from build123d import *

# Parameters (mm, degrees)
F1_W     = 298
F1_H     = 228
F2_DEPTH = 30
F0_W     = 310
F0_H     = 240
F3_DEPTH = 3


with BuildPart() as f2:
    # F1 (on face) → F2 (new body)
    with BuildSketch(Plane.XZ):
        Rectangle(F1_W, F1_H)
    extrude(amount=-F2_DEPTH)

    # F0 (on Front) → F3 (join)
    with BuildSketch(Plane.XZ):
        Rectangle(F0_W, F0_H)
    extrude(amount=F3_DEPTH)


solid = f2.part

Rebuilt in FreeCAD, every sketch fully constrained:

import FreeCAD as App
import Part
import Sketcher

V = App.Vector
Q = App.Units.Quantity

doc = App.newDocument("Part")
body = doc.addObject("PartDesign::Body", "Body")

# Sketch on XZ plane
sketch1 = body.newObject("Sketcher::SketchObject", "Sketch")
sketch1.AttachmentSupport = (doc.getObject("XZ_Plane"), [""])
sketch1.MapMode = "FlatFace"
sketch1.addGeometry(Part.LineSegment(V(-149, 114, 0), V(-149, -114, 0)), False)
sketch1.addGeometry(Part.LineSegment(V(-149, -114, 0), V(149, -114, 0)), False)
sketch1.addGeometry(Part.LineSegment(V(149, -114, 0), V(149, 114, 0)), False)
sketch1.addGeometry(Part.LineSegment(V(149, 114, 0), V(-149, 114, 0)), False)
sketch1.addConstraint(Sketcher.Constraint("Coincident", 0, 2, 1, 1))
sketch1.addConstraint(Sketcher.Constraint("Coincident", 1, 2, 2, 1))
sketch1.addConstraint(Sketcher.Constraint("Coincident", 2, 2, 3, 1))
sketch1.addConstraint(Sketcher.Constraint("Coincident", 3, 2, 0, 1))
sketch1.addConstraint(Sketcher.Constraint("Vertical", 0))
sketch1.addConstraint(Sketcher.Constraint("Horizontal", 1))
sketch1.addConstraint(Sketcher.Constraint("Vertical", 2))
sketch1.addConstraint(Sketcher.Constraint("Horizontal", 3))
sketch1.addConstraint(Sketcher.Constraint("Symmetric", 0, 2, 2, 2, -1, 1))
sketch1.addConstraint(Sketcher.Constraint("DistanceX", 1, 1, 1, 2, Q("298 mm")))
sketch1.addConstraint(Sketcher.Constraint("DistanceY", 0, 2, 0, 1, Q("228 mm")))
pad1 = body.newObject("PartDesign::Pad", "Pad")
pad1.Profile = sketch1
pad1.Length = 30
pad1.Reversed = True

# Sketch on XZ plane
sketch2 = body.newObject("Sketcher::SketchObject", "Sketch001")
sketch2.AttachmentSupport = (doc.getObject("XZ_Plane"), [""])
sketch2.MapMode = "FlatFace"
sketch2.addGeometry(Part.LineSegment(V(-155, 120, 0), V(-155, -120, 0)), False)
sketch2.addGeometry(Part.LineSegment(V(-155, -120, 0), V(155, -120, 0)), False)
sketch2.addGeometry(Part.LineSegment(V(155, -120, 0), V(155, 120, 0)), False)
sketch2.addGeometry(Part.LineSegment(V(155, 120, 0), V(-155, 120, 0)), False)
sketch2.addConstraint(Sketcher.Constraint("Coincident", 0, 2, 1, 1))
sketch2.addConstraint(Sketcher.Constraint("Coincident", 1, 2, 2, 1))
sketch2.addConstraint(Sketcher.Constraint("Coincident", 2, 2, 3, 1))
sketch2.addConstraint(Sketcher.Constraint("Coincident", 3, 2, 0, 1))
sketch2.addConstraint(Sketcher.Constraint("Vertical", 0))
sketch2.addConstraint(Sketcher.Constraint("Horizontal", 1))
sketch2.addConstraint(Sketcher.Constraint("Vertical", 2))
sketch2.addConstraint(Sketcher.Constraint("Horizontal", 3))
sketch2.addConstraint(Sketcher.Constraint("Symmetric", 0, 2, 2, 2, -1, 1))
sketch2.addConstraint(Sketcher.Constraint("DistanceX", 1, 1, 1, 2, Q("310 mm")))
sketch2.addConstraint(Sketcher.Constraint("DistanceY", 0, 2, 0, 1, Q("240 mm")))
pad2 = body.newObject("PartDesign::Pad", "Pad001")
pad2.Profile = sketch2
pad2.Length = 3

doc.recompute()
